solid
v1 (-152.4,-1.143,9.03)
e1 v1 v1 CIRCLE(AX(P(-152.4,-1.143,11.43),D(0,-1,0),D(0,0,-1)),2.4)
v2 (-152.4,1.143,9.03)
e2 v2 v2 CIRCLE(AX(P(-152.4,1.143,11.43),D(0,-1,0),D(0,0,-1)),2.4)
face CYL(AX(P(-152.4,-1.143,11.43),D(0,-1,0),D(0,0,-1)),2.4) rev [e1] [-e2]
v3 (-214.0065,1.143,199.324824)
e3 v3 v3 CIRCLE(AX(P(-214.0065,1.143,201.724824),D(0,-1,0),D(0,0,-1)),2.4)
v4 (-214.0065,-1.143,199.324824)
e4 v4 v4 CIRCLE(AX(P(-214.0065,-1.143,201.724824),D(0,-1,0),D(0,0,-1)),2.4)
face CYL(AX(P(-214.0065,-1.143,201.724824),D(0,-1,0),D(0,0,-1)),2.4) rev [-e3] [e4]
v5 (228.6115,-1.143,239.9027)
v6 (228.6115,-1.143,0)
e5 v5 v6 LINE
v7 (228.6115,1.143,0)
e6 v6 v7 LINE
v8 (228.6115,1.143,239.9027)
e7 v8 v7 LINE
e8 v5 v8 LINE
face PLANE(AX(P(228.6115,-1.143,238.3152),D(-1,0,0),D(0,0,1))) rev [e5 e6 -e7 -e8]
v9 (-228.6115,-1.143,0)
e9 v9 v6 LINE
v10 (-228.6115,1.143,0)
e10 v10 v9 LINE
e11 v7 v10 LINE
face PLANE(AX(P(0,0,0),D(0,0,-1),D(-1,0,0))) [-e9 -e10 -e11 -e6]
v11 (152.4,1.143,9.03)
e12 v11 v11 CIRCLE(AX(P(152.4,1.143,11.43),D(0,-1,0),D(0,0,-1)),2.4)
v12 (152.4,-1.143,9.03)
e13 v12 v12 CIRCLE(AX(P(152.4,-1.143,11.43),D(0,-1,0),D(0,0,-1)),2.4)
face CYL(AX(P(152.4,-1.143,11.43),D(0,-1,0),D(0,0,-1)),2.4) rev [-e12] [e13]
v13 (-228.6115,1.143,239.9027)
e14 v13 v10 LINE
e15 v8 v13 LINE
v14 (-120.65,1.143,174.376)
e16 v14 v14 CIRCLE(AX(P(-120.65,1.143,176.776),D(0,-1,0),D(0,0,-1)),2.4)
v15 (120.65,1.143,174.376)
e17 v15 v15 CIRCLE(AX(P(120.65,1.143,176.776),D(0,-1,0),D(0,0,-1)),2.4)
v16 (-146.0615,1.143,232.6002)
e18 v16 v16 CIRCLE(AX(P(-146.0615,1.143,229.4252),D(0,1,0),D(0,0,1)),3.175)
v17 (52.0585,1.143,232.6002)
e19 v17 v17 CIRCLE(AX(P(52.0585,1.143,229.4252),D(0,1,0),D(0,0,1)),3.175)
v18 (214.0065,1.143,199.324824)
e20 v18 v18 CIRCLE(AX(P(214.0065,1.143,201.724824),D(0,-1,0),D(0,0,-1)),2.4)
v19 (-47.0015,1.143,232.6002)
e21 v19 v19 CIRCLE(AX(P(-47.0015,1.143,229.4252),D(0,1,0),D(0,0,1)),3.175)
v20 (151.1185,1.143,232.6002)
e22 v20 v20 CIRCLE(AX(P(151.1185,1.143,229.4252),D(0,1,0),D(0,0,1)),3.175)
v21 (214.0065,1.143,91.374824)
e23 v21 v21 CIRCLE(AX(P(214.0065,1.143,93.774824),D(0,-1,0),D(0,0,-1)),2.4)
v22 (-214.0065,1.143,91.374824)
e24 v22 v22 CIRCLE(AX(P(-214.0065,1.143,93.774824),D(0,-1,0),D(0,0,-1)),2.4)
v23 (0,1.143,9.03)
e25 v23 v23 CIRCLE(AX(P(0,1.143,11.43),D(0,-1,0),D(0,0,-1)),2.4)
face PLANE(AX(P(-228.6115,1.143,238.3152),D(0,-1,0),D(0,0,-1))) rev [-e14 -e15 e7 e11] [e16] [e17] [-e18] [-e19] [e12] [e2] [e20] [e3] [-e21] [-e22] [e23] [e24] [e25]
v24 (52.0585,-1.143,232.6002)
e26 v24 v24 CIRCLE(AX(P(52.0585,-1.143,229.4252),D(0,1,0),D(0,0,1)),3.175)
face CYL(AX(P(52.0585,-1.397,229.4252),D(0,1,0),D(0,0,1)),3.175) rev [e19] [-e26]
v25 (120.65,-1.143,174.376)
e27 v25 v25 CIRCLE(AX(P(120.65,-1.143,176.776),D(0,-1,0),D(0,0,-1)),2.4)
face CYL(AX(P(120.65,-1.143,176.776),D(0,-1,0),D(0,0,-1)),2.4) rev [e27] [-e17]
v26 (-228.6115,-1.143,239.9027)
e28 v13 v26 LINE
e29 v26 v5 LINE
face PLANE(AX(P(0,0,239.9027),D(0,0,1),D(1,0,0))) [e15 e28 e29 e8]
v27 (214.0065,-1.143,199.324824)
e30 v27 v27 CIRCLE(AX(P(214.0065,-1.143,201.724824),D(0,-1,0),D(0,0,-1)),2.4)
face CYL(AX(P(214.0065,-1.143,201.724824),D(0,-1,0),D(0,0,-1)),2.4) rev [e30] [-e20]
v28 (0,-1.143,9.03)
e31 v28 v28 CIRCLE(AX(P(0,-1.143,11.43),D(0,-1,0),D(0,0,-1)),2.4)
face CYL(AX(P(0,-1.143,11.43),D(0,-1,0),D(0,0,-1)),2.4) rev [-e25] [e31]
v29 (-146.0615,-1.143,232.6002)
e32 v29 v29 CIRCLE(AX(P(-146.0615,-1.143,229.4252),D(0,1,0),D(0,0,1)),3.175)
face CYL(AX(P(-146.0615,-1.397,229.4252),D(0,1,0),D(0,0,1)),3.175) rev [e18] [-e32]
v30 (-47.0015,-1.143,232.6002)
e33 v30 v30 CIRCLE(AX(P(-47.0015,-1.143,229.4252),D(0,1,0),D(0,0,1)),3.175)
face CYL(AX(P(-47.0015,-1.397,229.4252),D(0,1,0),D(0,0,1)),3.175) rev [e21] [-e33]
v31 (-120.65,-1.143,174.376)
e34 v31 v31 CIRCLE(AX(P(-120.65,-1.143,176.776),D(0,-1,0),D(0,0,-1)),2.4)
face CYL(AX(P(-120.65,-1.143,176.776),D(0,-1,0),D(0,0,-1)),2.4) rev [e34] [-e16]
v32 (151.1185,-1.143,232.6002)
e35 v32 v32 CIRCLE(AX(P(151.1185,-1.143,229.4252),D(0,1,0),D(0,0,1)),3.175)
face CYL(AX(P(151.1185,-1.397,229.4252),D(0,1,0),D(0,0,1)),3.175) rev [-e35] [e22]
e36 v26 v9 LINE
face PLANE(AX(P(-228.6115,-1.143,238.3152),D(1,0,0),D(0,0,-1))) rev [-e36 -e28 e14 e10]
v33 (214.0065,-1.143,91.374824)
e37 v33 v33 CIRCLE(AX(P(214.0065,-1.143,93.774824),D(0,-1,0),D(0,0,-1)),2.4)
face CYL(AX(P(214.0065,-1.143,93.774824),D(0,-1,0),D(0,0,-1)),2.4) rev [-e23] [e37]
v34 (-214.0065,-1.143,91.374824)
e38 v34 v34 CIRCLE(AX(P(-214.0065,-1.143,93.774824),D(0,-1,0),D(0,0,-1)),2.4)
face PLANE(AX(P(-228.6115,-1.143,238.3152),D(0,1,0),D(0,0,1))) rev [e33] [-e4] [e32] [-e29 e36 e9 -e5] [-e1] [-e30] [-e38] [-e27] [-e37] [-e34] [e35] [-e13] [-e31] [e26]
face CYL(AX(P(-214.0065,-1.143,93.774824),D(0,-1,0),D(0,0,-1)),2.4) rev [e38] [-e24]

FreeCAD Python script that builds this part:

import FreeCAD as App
import Part
import Sketcher
Q = App.Units.Quantity

doc = App.newDocument("Part")
params = doc.addObject("Spreadsheet::Sheet", "Params")
for row, (alias, value) in enumerate([
    ("sketch1_height", "0.09 in"),
    ("pad1_length", "238.3152 mm"),
    ("sketch2_diameter", "0.25 in"),
    ("pocket1_length", "0.1 in"),
    ("linearpattern_pitch", "3.9 in"),
    ("sketch3_height", "0.09 in"),
    ("pad2_length", "0.0625 in"),
    ("hole_diameter", "4.8 mm"),
], start=1):
    params.set(f"A{row}", alias)
    params.set(f"B{row}", "=" + value)
    params.setAlias(f"B{row}", alias)

body = doc.addObject("PartDesign::Body", "Body")

# Sketch on XY plane
sketch1 = body.newObject("Sketcher::SketchObject", "Sketch")
sketch1.AttachmentSupport = (doc.getObject("XY_Plane"), [""])
sketch1.MapMode = "FlatFace"
sketch1.addGeometry([
    Part.LineSegment(App.Vector(-228.6115, 1.143, 0), App.Vector(-228.6115, -1.143, 0)),
    Part.LineSegment(App.Vector(-228.6115, -1.143, 0), App.Vector(228.6115, -1.143, 0)),
    Part.LineSegment(App.Vector(228.6115, -1.143, 0), App.Vector(228.6115, 1.143, 0)),
    Part.LineSegment(App.Vector(228.6115, 1.143, 0), App.Vector(-228.6115, 1.143, 0)),
], False)
sketch1.addConstraint([
    Sketcher.Constraint("Coincident", 0, 2, 1, 1),
    Sketcher.Constraint("Coincident", 1, 2, 2, 1),
    Sketcher.Constraint("Coincident", 2, 2, 3, 1),
    Sketcher.Constraint("Coincident", 3, 2, 0, 1),
    Sketcher.Constraint("Vertical", 0),
    Sketcher.Constraint("Horizontal", 1),
    Sketcher.Constraint("Vertical", 2),
    Sketcher.Constraint("Horizontal", 3),
    Sketcher.Constraint("Symmetric", 0, 2, 2, 2, -1, 1),
    Sketcher.Constraint("DistanceY", 0, 2, 0, 1, Q("0.09 in")),
    Sketcher.Constraint("DistanceX", 1, 1, 1, 2, Q("457.223 mm")),
])
sketch1.setExpression("Constraints[9]", "Params.sketch1_height")
pad1 = body.newObject("PartDesign::Pad", "Pad")
pad1.Profile = sketch1
pad1.setExpression("Length", "Params.pad1_length")

# Sketch on XZ plane
sketch2 = body.newObject("Sketcher::SketchObject", "Sketch001")
sketch2.AttachmentSupport = (doc.getObject("XZ_Plane"), [""])
sketch2.MapMode = "FlatFace"
sketch2.AttachmentOffset = App.Placement(App.Vector(0, 0, -0.045 * 25.4), App.Rotation())
sketch2.addGeometry(Part.Circle(App.Vector(-146.0615, 229.4252, 0), App.Vector(0, 0, 1), 3.175), False)
sketch2.addConstraint([
    Sketcher.Constraint("Diameter", 0, Q("0.25 in")),
    Sketcher.Constraint("DistanceX", 0, 3, -1, 1, Q("146.0615 mm")),
    Sketcher.Constraint("DistanceY", -1, 1, 0, 3, Q("229.4252 mm")),
])
sketch2.setExpression("Constraints[0]", "Params.sketch2_diameter")
pocket1 = body.newObject("PartDesign::Pocket", "Pocket")
pocket1.Profile = sketch2
pocket1.setExpression("Length", "Params.pocket1_length")
pocket1.Reversed = True
doc.recompute()

linearpattern = body.newObject("PartDesign::LinearPattern", "LinearPattern")
linearpattern.Originals = [pocket1]
linearpattern.Direction = (doc.getObject("X_Axis"), [""])
linearpattern.Mode = "offset"
linearpattern.setExpression("Offset", "Params.linearpattern_pitch")
linearpattern.Occurrences = 4
body.Tip = linearpattern

# Sketch on XY plane
sketch3 = body.newObject("Sketcher::SketchObject", "Sketch002")
sketch3.AttachmentSupport = (doc.getObject("XY_Plane"), [""])
sketch3.MapMode = "FlatFace"
sketch3.AttachmentOffset = App.Placement(App.Vector(0, 0, 238.3152), App.Rotation())
sketch3.addGeometry([
    Part.LineSegment(App.Vector(-228.6115, 1.143, 0), App.Vector(-228.6115, -1.143, 0)),
    Part.LineSegment(App.Vector(-228.6115, -1.143, 0), App.Vector(228.6115, -1.143, 0)),
    Part.LineSegment(App.Vector(228.6115, -1.143, 0), App.Vector(228.6115, 1.143, 0)),
    Part.LineSegment(App.Vector(228.6115, 1.143, 0), App.Vector(-228.6115, 1.143, 0)),
], False)
sketch3.addConstraint([
    Sketcher.Constraint("Coincident", 0, 2, 1, 1),
    Sketcher.Constraint("Coincident", 1, 2, 2, 1),
    Sketcher.Constraint("Coincident", 2, 2, 3, 1),
    Sketcher.Constraint("Coincident", 3, 2, 0, 1),
    Sketcher.Constraint("Vertical", 0),
    Sketcher.Constraint("Horizontal", 1),
    Sketcher.Constraint("Vertical", 2),
    Sketcher.Constraint("Horizontal", 3),
    Sketcher.Constraint("Symmetric", 0, 2, 2, 2, -1, 1),
    Sketcher.Constraint("DistanceY", 0, 2, 0, 1, Q("0.09 in")),
    Sketcher.Constraint("DistanceX", 1, 1, 1, 2, Q("457.223 mm")),
])
sketch3.setExpression("Constraints[9]", "Params.sketch3_height")
pad2 = body.newObject("PartDesign::Pad", "Pad001")
pad2.Profile = sketch3
pad2.setExpression("Length", "Params.pad2_length")

# Sketch on XZ plane
sketch4 = body.newObject("Sketcher::SketchObject", "Sketch003")
sketch4.AttachmentSupport = (doc.getObject("XZ_Plane"), [""])
sketch4.MapMode = "FlatFace"
sketch4.AttachmentOffset = App.Placement(App.Vector(0, 0, 0.045 * 25.4), App.Rotation())
sketch4.addGeometry([
    Part.Circle(App.Vector(-214.0065, 201.724824, 0), App.Vector(0, 0, 1), 2.4),  # 0
    Part.Circle(App.Vector(-214.0065, 93.774824, 0), App.Vector(0, 0, 1), 2.4),  # 1
    Part.Circle(App.Vector(-152.4, 11.43, 0), App.Vector(0, 0, 1), 2.4),  # 2
    Part.Circle(App.Vector(0, 11.43, 0), App.Vector(0, 0, 1), 2.4),  # 3
    Part.Circle(App.Vector(152.4, 11.43, 0), App.Vector(0, 0, 1), 2.4),  # 4
    Part.Circle(App.Vector(214.0065, 93.774824, 0), App.Vector(0, 0, 1), 2.4),  # 5
    Part.Circle(App.Vector(214.0065, 201.724824, 0), App.Vector(0, 0, 1), 2.4),  # 6
    Part.Circle(App.Vector(120.65, 176.776, 0), App.Vector(0, 0, 1), 2.4),  # 7
    Part.Circle(App.Vector(-120.65, 176.776, 0), App.Vector(0, 0, 1), 2.4),  # 8
], False)
sketch4.addConstraint([
    Sketcher.Constraint("Equal", 0, 1),
    Sketcher.Constraint("Equal", 1, 2),
    Sketcher.Constraint("Equal", 2, 3),
    Sketcher.Constraint("Equal", 3, 4),
    Sketcher.Constraint("Equal", 4, 5),
    Sketcher.Constraint("Equal", 5, 6),
    Sketcher.Constraint("Equal", 6, 7),
    Sketcher.Constraint("Equal", 7, 8),
    Sketcher.Constraint("Symmetric", 2, 3, 4, 3, -2),
    Sketcher.Constraint("Symmetric", 1, 3, 5, 3, -2),
    Sketcher.Constraint("Symmetric", 0, 3, 6, 3, -2),
    Sketcher.Constraint("Symmetric", 7, 3, 8, 3, -2),
    Sketcher.Constraint("PointOnObject", 3, 3, -2),
    Sketcher.Constraint("Horizontal", 2, 3, 3, 3),
    Sketcher.Constraint("Vertical", 0, 3, 1, 3),
    Sketcher.Constraint("DistanceX", 2, 3, -1, 1, Q("6 in")),
    Sketcher.Constraint("DistanceX", 8, 3, 7, 3, Q("9.5 in")),
    Sketcher.Constraint("Diameter", 0, Q("4.8 mm")),
    Sketcher.Constraint("DistanceY", -1, 1, 2, 3, Q("0.45 in")),
    Sketcher.Constraint("DistanceY", 1, 3, 0, 3, Q("4.25 in")),
    Sketcher.Constraint("DistanceX", 0, 3, -1, 1, Q("214.0065 mm")),
    Sketcher.Constraint("DistanceY", -1, 1, 7, 3, Q("176.776 mm")),
    Sketcher.Constraint("DistanceY", -1, 1, 0, 3, Q("201.724824 mm")),
])
doc.recompute()
hole = body.newObject("PartDesign::Hole", "Hole")
hole.Profile = sketch4
hole.ThreadType = "None"
hole.setExpression("Diameter", "Params.hole_diameter")
hole.DepthType = "ThroughAll"

doc.recompute()
